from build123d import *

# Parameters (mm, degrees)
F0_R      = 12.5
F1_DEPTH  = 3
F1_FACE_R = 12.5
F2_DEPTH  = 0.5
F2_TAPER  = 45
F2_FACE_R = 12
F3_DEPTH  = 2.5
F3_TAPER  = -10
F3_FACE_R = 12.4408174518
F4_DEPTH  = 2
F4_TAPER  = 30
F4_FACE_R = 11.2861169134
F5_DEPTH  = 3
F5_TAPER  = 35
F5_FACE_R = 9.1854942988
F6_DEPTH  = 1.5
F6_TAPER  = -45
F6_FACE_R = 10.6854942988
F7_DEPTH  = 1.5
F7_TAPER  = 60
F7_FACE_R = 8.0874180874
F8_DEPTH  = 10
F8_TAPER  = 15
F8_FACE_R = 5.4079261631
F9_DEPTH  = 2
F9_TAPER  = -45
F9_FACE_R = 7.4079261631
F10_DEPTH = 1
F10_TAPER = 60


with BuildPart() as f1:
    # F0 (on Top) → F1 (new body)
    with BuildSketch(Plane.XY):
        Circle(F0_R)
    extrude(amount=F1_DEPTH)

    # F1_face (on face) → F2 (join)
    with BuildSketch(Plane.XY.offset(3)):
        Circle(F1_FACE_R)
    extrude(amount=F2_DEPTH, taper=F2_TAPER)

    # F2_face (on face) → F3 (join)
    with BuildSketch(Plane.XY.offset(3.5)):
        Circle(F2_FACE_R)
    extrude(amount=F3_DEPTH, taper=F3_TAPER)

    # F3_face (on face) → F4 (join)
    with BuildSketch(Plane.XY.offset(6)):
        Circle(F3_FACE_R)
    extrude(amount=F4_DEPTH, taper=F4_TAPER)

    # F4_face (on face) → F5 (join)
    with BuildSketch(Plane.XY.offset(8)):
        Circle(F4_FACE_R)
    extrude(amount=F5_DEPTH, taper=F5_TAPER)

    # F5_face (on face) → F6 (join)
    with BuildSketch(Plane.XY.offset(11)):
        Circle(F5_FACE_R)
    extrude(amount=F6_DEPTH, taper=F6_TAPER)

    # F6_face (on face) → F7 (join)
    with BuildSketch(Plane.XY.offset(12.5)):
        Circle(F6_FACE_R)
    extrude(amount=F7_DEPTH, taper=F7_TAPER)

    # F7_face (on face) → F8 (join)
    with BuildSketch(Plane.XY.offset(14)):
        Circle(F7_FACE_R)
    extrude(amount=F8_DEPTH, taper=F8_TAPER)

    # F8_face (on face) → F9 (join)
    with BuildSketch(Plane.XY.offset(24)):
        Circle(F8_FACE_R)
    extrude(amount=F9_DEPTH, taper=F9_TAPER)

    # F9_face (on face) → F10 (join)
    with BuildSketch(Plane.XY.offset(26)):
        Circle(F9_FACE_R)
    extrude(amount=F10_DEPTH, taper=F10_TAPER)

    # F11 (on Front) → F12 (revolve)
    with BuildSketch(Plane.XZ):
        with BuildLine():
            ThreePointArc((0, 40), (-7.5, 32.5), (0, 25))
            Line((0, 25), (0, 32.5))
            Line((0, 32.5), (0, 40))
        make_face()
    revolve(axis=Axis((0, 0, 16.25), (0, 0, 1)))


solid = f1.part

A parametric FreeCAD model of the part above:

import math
import FreeCAD as App
import Part
import Sketcher

V = App.Vector

doc = App.newDocument("Part")
body = doc.addObject("PartDesign::Body", "Body")

# Sketch on XY plane
sketch1 = body.newObject("Sketcher::SketchObject", "Sketch")
sketch1.AttachmentSupport = (doc.getObject("XY_Plane"), [""])
sketch1.MapMode = "FlatFace"
sketch1.addGeometry(Part.Circle(V(0, 0, 0), V(0, 0, 1), 12), False)
sketch1.addConstraint([
    Sketcher.Constraint("Coincident", 0, 3, -1, 1),
    Sketcher.Constraint("Diameter", 0, 25.0),
])
pad1 = body.newObject("PartDesign::Pad", "Pad")
pad1.Profile = sketch1
pad1.Length = 3

# Sketch on XY plane
sketch2 = body.newObject("Sketcher::SketchObject", "Sketch001")
sketch2.AttachmentSupport = (doc.getObject("XY_Plane"), [""])
sketch2.MapMode = "FlatFace"
sketch2.AttachmentOffset = App.Placement(V(0, 0, 3), App.Rotation())
sketch2.addGeometry(Part.Circle(V(0, 0, 0), V(0, 0, 1), 12), False)
sketch2.addConstraint([
    Sketcher.Constraint("Coincident", 0, 3, -1, 1),
    Sketcher.Constraint("Diameter", 0, 25.0),
])
pad2 = body.newObject("PartDesign::Pad", "Pad001")
pad2.Profile = sketch2
pad2.Length = 0.5
pad2.TaperAngle = -45

# Sketch on XY plane
sketch3 = body.newObject("Sketcher::SketchObject", "Sketch002")
sketch3.AttachmentSupport = (doc.getObject("XY_Plane"), [""])
sketch3.MapMode = "FlatFace"
sketch3.AttachmentOffset = App.Placement(V(0, 0, 3.5), App.Rotation())
sketch3.addGeometry(Part.Circle(V(0, 0, 0), V(0, 0, 1), 12), False)
sketch3.addConstraint([
    Sketcher.Constraint("Coincident", 0, 3, -1, 1),
    Sketcher.Constraint("Diameter", 0, 24.0),
])
pad3 = body.newObject("PartDesign::Pad", "Pad002")
pad3.Profile = sketch3
pad3.Length = 2.5
pad3.TaperAngle = 10

# Sketch on XY plane
sketch4 = body.newObject("Sketcher::SketchObject", "Sketch003")
sketch4.AttachmentSupport = (doc.getObject("XY_Plane"), [""])
sketch4.MapMode = "FlatFace"
sketch4.AttachmentOffset = App.Placement(V(0, 0, 6), App.Rotation())
sketch4.addGeometry(Part.Circle(V(0, 0, 0), V(0, 0, 1), 12), False)
sketch4.addConstraint([
    Sketcher.Constraint("Coincident", 0, 3, -1, 1),
    Sketcher.Constraint("Diameter", 0, 24.881635),
])
pad4 = body.newObject("PartDesign::Pad", "Pad003")
pad4.Profile = sketch4
pad4.Length = 2
pad4.TaperAngle = -30

# Sketch on XY plane
sketch5 = body.newObject("Sketcher::SketchObject", "Sketch004")
sketch5.AttachmentSupport = (doc.getObject("XY_Plane"), [""])
sketch5.MapMode = "FlatFace"
sketch5.AttachmentOffset = App.Placement(V(0, 0, 8), App.Rotation())
sketch5.addGeometry(Part.Circle(V(0, 0, 0), V(0, 0, 1), 11), False)
sketch5.addConstraint([
    Sketcher.Constraint("Coincident", 0, 3, -1, 1),
    Sketcher.Constraint("Diameter", 0, 22.572234),
])
pad5 = body.newObject("PartDesign::Pad", "Pad004")
pad5.Profile = sketch5
pad5.Length = 3
pad5.TaperAngle = -35

# Sketch on XY plane
sketch6 = body.newObject("Sketcher::SketchObject", "Sketch005")
sketch6.AttachmentSupport = (doc.getObject("XY_Plane"), [""])
sketch6.MapMode = "FlatFace"
sketch6.AttachmentOffset = App.Placement(V(0, 0, 11), App.Rotation())
sketch6.addGeometry(Part.Circle(V(0, 0, 0), V(0, 0, 1), 9), False)
sketch6.addConstraint([
    Sketcher.Constraint("Coincident", 0, 3, -1, 1),
    Sketcher.Constraint("Diameter", 0, 18.370989),
])
pad6 = body.newObject("PartDesign::Pad", "Pad005")
pad6.Profile = sketch6
pad6.Length = 1.5
pad6.TaperAngle = 45

# Sketch on XY plane
sketch7 = body.newObject("Sketcher::SketchObject", "Sketch006")
sketch7.AttachmentSupport = (doc.getObject("XY_Plane"), [""])
sketch7.MapMode = "FlatFace"
sketch7.AttachmentOffset = App.Placement(V(0, 0, 12.5), App.Rotation())
sketch7.addGeometry(Part.Circle(V(0, 0, 0), V(0, 0, 1), 11), False)
sketch7.addConstraint([
    Sketcher.Constraint("Coincident", 0, 3, -1, 1),
    Sketcher.Constraint("Diameter", 0, 21.370989),
])
pad7 = body.newObject("PartDesign::Pad", "Pad006")
pad7.Profile = sketch7
pad7.Length = 1.5
pad7.TaperAngle = -60

# Sketch on XY plane
sketch8 = body.newObject("Sketcher::SketchObject", "Sketch007")
sketch8.AttachmentSupport = (doc.getObject("XY_Plane"), [""])
sketch8.MapMode = "FlatFace"
sketch8.AttachmentOffset = App.Placement(V(0, 0, 14), App.Rotation())
sketch8.addGeometry(Part.Circle(V(0, 0, 0), V(0, 0, 1), 8), False)
sketch8.addConstraint([
    Sketcher.Constraint("Coincident", 0, 3, -1, 1),
    Sketcher.Constraint("Diameter", 0, 16.174836),
])
pad8 = body.newObject("PartDesign::Pad", "Pad007")
pad8.Profile = sketch8
pad8.Length = 10
pad8.TaperAngle = -15

# Sketch on XY plane
sketch9 = body.newObject("Sketcher::SketchObject", "Sketch008")
sketch9.AttachmentSupport = (doc.getObject("XY_Plane"), [""])
sketch9.MapMode = "FlatFace"
sketch9.AttachmentOffset = App.Placement(V(0, 0, 24), App.Rotation())
sketch9.addGeometry(Part.Circle(V(0, 0, 0), V(0, 0, 1), 5), False)
sketch9.addConstraint([
    Sketcher.Constraint("Coincident", 0, 3, -1, 1),
    Sketcher.Constraint("Diameter", 0, 10.815852),
])
pad9 = body.newObject("PartDesign::Pad", "Pad008")
pad9.Profile = sketch9
pad9.Length = 2
pad9.TaperAngle = 45

# Sketch on XY plane
sketch10 = body.newObject("Sketcher::SketchObject", "Sketch009")
sketch10.AttachmentSupport = (doc.getObject("XY_Plane"), [""])
sketch10.MapMode = "FlatFace"
sketch10.AttachmentOffset = App.Placement(V(0, 0, 26), App.Rotation())
sketch10.addGeometry(Part.Circle(V(0, 0, 0), V(0, 0, 1), 7), False)
sketch10.addConstraint([
    Sketcher.Constraint("Coincident", 0, 3, -1, 1),
    Sketcher.Constraint("Diameter", 0, 14.815852),
])
pad10 = body.newObject("PartDesign::Pad", "Pad009")
pad10.Profile = sketch10
pad10.Length = 1
pad10.TaperAngle = -60

# Sketch on XZ plane
sketch11 = body.newObject("Sketcher::SketchObject", "Sketch010")
sketch11.AttachmentSupport = (doc.getObject("XZ_Plane"), [""])
sketch11.MapMode = "FlatFace"
sketch11.addGeometry([
    Part.ArcOfCircle(Part.Circle(V(0, 32, 0), V(0, 0, 1), 8), math.radians(90), math.radians(270)),
    Part.LineSegment(V(0, 25, 0), V(0, 40, 0)),
], False)
sketch11.addConstraint([
    Sketcher.Constraint("Coincident", 0, 1, 1, 2),
    Sketcher.Constraint("Coincident", 1, 1, 0, 2),
    Sketcher.Constraint("Vertical", 1),
    Sketcher.Constraint("PointOnObject", 0, 3, -2),
    Sketcher.Constraint("PointOnObject", 0, 1, -2),
    Sketcher.Constraint("Radius", 0, 7.5),
    Sketcher.Constraint("DistanceY", -1, 1, 0, 1, 40.0),
])
revolution = body.newObject("PartDesign::Revolution", "Revolution")
revolution.Profile = sketch11
revolution.ReferenceAxis = (sketch11, ["V_Axis"])
revolution.Angle = 360

doc.recompute()
